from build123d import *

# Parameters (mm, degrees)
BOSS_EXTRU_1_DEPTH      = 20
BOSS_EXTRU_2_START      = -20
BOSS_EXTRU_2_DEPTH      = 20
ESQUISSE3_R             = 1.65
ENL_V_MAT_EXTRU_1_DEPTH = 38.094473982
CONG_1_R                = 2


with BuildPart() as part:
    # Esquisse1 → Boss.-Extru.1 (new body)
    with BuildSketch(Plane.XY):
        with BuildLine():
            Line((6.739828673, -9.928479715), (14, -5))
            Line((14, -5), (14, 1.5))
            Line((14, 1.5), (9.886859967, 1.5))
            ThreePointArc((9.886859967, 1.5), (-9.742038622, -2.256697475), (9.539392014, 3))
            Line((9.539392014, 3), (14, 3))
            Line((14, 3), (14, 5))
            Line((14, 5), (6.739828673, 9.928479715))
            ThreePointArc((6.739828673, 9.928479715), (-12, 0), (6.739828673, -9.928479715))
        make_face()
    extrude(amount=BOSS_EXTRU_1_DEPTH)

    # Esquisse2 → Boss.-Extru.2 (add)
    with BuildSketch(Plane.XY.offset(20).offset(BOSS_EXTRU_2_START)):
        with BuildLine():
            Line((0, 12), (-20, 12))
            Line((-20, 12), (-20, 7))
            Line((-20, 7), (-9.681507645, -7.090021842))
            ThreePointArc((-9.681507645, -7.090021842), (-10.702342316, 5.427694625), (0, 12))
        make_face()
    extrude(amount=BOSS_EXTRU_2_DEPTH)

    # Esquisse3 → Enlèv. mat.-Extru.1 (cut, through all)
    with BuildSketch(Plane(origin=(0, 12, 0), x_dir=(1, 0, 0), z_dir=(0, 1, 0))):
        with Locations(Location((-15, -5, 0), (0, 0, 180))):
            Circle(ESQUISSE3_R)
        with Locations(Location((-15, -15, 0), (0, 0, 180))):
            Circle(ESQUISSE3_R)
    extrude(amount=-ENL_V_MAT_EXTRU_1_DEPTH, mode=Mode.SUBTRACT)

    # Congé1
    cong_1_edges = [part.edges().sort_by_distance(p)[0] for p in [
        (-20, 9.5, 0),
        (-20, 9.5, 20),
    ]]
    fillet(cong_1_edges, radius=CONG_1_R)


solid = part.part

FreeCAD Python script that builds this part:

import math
import FreeCAD as App
import Part
import Sketcher

V = App.Vector


def edges_at(feature, points):
    """Names of the edges that pass closest to the given points."""
    edges = feature.Shape.Edges
    near = lambda p: min(range(len(edges)), key=lambda i: edges[i].distToShape(Part.Vertex(*p))[0])
    return sorted({f"Edge{near(p) + 1}" for p in points})

doc = App.newDocument("Part")
body = doc.addObject("PartDesign::Body", "Body")

# Sketch on XY plane
sketch1 = doc.addObject("Sketcher::SketchObject", "Sketch")
body.addObject(sketch1)
sketch1.AttachmentSupport = (doc.XY_Plane, [""])
sketch1.MapMode = "FlatFace"
sketch1.addGeometry(Part.LineSegment(V(6.739829, -9.92848, 0), V(14, -5, 0)), False)
sketch1.addGeometry(Part.LineSegment(V(14, -5, 0), V(14, 1.5, 0)), False)
sketch1.addGeometry(Part.LineSegment(V(14, 1.5, 0), V(9.88686, 1.5, 0)), False)
sketch1.addGeometry(Part.ArcOfCircle(Part.Circle(V(0, 0, 0), V(0, 0, 1), 10), math.radians(17.457603), math.radians(368.626927)), False)
sketch1.addGeometry(Part.LineSegment(V(9.539392, 3, 0), V(14, 3, 0)), False)
sketch1.addGeometry(Part.LineSegment(V(14, 3, 0), V(14, 5, 0)), False)
sketch1.addGeometry(Part.LineSegment(V(14, 5, 0), V(6.739829, 9.92848, 0)), False)
sketch1.addGeometry(Part.ArcOfCircle(Part.Circle(V(0, 0, 0), V(0, 0, 1), 12), math.radians(55.829851), math.radians(304.170149)), False)
sketch1.addConstraint(Sketcher.Constraint("Coincident", 0, 2, 1, 1))
sketch1.addConstraint(Sketcher.Constraint("Coincident", 1, 2, 2, 1))
sketch1.addConstraint(Sketcher.Constraint("Coincident", 2, 2, 3, 2))
sketch1.addConstraint(Sketcher.Constraint("Coincident", 3, 1, 4, 1))
sketch1.addConstraint(Sketcher.Constraint("Coincident", 4, 2, 5, 1))
sketch1.addConstraint(Sketcher.Constraint("Coincident", 5, 2, 6, 1))
sketch1.addConstraint(Sketcher.Constraint("Tangent", 6, 2, 7, 1))
sketch1.addConstraint(Sketcher.Constraint("Tangent", 7, 2, 0, 1))
sketch1.addConstraint(Sketcher.Constraint("Vertical", 1))
sketch1.addConstraint(Sketcher.Constraint("Horizontal", 2))
sketch1.addConstraint(Sketcher.Constraint("Horizontal", 4))
sketch1.addConstraint(Sketcher.Constraint("Vertical", 5))
sketch1.addConstraint(Sketcher.Constraint("Coincident", 3, 3, -1, 1))
sketch1.addConstraint(Sketcher.Constraint("Coincident", 7, 3, -1, 1))
sketch1.addConstraint(Sketcher.Constraint("Symmetric", 0, 2, 5, 2, -1))
sketch1.addConstraint(Sketcher.Constraint("Radius", 3, 10.0))
sketch1.addConstraint(Sketcher.Constraint("Radius", 7, 12.0))
sketch1.addConstraint(Sketcher.Constraint("DistanceY", 5, 1, 5, 2, 2.0))
sketch1.addConstraint(Sketcher.Constraint("DistanceY", 1, 1, 1, 2, 6.5))
sketch1.addConstraint(Sketcher.Constraint("DistanceX", -1, 1, 0, 2, 14.0))
sketch1.addConstraint(Sketcher.Constraint("DistanceY", 0, 2, -1, 1, 5.0))
pad1 = doc.addObject("PartDesign::Pad", "Pad")
body.addObject(pad1)
pad1.Profile = sketch1
pad1.Length = 20

# Sketch on XY plane
sketch2 = doc.addObject("Sketcher::SketchObject", "Sketch001")
body.addObject(sketch2)
sketch2.AttachmentSupport = (doc.XY_Plane, [""])
sketch2.MapMode = "FlatFace"
sketch2.addGeometry(Part.LineSegment(V(0, 12, 0), V(-20, 12, 0)), False)
sketch2.addGeometry(Part.LineSegment(V(-20, 12, 0), V(-20, 7, 0)), False)
sketch2.addGeometry(Part.LineSegment(V(-20, 7, 0), V(-9.681508, -7.090022, 0)), False)
sketch2.addGeometry(Part.ArcOfCircle(Part.Circle(V(0, 0, 0), V(0, 0, 1), 12), math.radians(90), math.radians(216.216296)), False)
sketch2.addConstraint(Sketcher.Constraint("Coincident", 0, 2, 1, 1))
sketch2.addConstraint(Sketcher.Constraint("Coincident", 1, 2, 2, 1))
sketch2.addConstraint(Sketcher.Constraint("Tangent", 2, 2, 3, 2))
sketch2.addConstraint(Sketcher.Constraint("Tangent", 3, 1, 0, 1))
sketch2.addConstraint(Sketcher.Constraint("Horizontal", 0))
sketch2.addConstraint(Sketcher.Constraint("Vertical", 1))
sketch2.addConstraint(Sketcher.Constraint("Coincident", 3, 3, -1, 1))
sketch2.addConstraint(Sketcher.Constraint("Radius", 3, 12.0))
sketch2.addConstraint(Sketcher.Constraint("DistanceX", 0, 2, 0, 1, 20.0))
sketch2.addConstraint(Sketcher.Constraint("DistanceY", 1, 2, 1, 1, 5.0))
pad2 = doc.addObject("PartDesign::Pad", "Pad001")
body.addObject(pad2)
pad2.Profile = sketch2
pad2.Length = 20

# Sketch on XZ plane
sketch3 = doc.addObject("Sketcher::SketchObject", "Sketch002")
body.addObject(sketch3)
sketch3.AttachmentSupport = (doc.XZ_Plane, [""])
sketch3.MapMode = "FlatFace"
sketch3.AttachmentOffset = App.Placement(V(0, 0, -12), App.Rotation())
sketch3.addGeometry(Part.Circle(V(-15, 5, 0), V(0, 0, 1), 1.65), False)
sketch3.addGeometry(Part.Circle(V(-15, 15, 0), V(0, 0, 1), 1.65), False)
sketch3.addConstraint(Sketcher.Constraint("Equal", 0, 1))
sketch3.addConstraint(Sketcher.Constraint("Vertical", 0, 3, 1, 3))
sketch3.addConstraint(Sketcher.Constraint("Diameter", 0, 3.3))
sketch3.addConstraint(Sketcher.Constraint("DistanceX", 0, 3, -1, 1, 15.0))
sketch3.addConstraint(Sketcher.Constraint("DistanceY", -1, 1, 0, 3, 5.0))
sketch3.addConstraint(Sketcher.Constraint("DistanceY", -1, 1, 1, 3, 15.0))
pocket1 = doc.addObject("PartDesign::Pocket", "Pocket")
body.addObject(pocket1)
pocket1.Profile = sketch3
pocket1.Type = "ThroughAll"
pocket1.Reversed = True
doc.recompute()

fillet = doc.addObject("PartDesign::Fillet", "Fillet")
body.addObject(fillet)
fillet.Base = (pocket1, edges_at(pocket1, [(-20, 9.5, 0), (-20, 9.5, 20)]))
fillet.Radius = 2

doc.recompute()
